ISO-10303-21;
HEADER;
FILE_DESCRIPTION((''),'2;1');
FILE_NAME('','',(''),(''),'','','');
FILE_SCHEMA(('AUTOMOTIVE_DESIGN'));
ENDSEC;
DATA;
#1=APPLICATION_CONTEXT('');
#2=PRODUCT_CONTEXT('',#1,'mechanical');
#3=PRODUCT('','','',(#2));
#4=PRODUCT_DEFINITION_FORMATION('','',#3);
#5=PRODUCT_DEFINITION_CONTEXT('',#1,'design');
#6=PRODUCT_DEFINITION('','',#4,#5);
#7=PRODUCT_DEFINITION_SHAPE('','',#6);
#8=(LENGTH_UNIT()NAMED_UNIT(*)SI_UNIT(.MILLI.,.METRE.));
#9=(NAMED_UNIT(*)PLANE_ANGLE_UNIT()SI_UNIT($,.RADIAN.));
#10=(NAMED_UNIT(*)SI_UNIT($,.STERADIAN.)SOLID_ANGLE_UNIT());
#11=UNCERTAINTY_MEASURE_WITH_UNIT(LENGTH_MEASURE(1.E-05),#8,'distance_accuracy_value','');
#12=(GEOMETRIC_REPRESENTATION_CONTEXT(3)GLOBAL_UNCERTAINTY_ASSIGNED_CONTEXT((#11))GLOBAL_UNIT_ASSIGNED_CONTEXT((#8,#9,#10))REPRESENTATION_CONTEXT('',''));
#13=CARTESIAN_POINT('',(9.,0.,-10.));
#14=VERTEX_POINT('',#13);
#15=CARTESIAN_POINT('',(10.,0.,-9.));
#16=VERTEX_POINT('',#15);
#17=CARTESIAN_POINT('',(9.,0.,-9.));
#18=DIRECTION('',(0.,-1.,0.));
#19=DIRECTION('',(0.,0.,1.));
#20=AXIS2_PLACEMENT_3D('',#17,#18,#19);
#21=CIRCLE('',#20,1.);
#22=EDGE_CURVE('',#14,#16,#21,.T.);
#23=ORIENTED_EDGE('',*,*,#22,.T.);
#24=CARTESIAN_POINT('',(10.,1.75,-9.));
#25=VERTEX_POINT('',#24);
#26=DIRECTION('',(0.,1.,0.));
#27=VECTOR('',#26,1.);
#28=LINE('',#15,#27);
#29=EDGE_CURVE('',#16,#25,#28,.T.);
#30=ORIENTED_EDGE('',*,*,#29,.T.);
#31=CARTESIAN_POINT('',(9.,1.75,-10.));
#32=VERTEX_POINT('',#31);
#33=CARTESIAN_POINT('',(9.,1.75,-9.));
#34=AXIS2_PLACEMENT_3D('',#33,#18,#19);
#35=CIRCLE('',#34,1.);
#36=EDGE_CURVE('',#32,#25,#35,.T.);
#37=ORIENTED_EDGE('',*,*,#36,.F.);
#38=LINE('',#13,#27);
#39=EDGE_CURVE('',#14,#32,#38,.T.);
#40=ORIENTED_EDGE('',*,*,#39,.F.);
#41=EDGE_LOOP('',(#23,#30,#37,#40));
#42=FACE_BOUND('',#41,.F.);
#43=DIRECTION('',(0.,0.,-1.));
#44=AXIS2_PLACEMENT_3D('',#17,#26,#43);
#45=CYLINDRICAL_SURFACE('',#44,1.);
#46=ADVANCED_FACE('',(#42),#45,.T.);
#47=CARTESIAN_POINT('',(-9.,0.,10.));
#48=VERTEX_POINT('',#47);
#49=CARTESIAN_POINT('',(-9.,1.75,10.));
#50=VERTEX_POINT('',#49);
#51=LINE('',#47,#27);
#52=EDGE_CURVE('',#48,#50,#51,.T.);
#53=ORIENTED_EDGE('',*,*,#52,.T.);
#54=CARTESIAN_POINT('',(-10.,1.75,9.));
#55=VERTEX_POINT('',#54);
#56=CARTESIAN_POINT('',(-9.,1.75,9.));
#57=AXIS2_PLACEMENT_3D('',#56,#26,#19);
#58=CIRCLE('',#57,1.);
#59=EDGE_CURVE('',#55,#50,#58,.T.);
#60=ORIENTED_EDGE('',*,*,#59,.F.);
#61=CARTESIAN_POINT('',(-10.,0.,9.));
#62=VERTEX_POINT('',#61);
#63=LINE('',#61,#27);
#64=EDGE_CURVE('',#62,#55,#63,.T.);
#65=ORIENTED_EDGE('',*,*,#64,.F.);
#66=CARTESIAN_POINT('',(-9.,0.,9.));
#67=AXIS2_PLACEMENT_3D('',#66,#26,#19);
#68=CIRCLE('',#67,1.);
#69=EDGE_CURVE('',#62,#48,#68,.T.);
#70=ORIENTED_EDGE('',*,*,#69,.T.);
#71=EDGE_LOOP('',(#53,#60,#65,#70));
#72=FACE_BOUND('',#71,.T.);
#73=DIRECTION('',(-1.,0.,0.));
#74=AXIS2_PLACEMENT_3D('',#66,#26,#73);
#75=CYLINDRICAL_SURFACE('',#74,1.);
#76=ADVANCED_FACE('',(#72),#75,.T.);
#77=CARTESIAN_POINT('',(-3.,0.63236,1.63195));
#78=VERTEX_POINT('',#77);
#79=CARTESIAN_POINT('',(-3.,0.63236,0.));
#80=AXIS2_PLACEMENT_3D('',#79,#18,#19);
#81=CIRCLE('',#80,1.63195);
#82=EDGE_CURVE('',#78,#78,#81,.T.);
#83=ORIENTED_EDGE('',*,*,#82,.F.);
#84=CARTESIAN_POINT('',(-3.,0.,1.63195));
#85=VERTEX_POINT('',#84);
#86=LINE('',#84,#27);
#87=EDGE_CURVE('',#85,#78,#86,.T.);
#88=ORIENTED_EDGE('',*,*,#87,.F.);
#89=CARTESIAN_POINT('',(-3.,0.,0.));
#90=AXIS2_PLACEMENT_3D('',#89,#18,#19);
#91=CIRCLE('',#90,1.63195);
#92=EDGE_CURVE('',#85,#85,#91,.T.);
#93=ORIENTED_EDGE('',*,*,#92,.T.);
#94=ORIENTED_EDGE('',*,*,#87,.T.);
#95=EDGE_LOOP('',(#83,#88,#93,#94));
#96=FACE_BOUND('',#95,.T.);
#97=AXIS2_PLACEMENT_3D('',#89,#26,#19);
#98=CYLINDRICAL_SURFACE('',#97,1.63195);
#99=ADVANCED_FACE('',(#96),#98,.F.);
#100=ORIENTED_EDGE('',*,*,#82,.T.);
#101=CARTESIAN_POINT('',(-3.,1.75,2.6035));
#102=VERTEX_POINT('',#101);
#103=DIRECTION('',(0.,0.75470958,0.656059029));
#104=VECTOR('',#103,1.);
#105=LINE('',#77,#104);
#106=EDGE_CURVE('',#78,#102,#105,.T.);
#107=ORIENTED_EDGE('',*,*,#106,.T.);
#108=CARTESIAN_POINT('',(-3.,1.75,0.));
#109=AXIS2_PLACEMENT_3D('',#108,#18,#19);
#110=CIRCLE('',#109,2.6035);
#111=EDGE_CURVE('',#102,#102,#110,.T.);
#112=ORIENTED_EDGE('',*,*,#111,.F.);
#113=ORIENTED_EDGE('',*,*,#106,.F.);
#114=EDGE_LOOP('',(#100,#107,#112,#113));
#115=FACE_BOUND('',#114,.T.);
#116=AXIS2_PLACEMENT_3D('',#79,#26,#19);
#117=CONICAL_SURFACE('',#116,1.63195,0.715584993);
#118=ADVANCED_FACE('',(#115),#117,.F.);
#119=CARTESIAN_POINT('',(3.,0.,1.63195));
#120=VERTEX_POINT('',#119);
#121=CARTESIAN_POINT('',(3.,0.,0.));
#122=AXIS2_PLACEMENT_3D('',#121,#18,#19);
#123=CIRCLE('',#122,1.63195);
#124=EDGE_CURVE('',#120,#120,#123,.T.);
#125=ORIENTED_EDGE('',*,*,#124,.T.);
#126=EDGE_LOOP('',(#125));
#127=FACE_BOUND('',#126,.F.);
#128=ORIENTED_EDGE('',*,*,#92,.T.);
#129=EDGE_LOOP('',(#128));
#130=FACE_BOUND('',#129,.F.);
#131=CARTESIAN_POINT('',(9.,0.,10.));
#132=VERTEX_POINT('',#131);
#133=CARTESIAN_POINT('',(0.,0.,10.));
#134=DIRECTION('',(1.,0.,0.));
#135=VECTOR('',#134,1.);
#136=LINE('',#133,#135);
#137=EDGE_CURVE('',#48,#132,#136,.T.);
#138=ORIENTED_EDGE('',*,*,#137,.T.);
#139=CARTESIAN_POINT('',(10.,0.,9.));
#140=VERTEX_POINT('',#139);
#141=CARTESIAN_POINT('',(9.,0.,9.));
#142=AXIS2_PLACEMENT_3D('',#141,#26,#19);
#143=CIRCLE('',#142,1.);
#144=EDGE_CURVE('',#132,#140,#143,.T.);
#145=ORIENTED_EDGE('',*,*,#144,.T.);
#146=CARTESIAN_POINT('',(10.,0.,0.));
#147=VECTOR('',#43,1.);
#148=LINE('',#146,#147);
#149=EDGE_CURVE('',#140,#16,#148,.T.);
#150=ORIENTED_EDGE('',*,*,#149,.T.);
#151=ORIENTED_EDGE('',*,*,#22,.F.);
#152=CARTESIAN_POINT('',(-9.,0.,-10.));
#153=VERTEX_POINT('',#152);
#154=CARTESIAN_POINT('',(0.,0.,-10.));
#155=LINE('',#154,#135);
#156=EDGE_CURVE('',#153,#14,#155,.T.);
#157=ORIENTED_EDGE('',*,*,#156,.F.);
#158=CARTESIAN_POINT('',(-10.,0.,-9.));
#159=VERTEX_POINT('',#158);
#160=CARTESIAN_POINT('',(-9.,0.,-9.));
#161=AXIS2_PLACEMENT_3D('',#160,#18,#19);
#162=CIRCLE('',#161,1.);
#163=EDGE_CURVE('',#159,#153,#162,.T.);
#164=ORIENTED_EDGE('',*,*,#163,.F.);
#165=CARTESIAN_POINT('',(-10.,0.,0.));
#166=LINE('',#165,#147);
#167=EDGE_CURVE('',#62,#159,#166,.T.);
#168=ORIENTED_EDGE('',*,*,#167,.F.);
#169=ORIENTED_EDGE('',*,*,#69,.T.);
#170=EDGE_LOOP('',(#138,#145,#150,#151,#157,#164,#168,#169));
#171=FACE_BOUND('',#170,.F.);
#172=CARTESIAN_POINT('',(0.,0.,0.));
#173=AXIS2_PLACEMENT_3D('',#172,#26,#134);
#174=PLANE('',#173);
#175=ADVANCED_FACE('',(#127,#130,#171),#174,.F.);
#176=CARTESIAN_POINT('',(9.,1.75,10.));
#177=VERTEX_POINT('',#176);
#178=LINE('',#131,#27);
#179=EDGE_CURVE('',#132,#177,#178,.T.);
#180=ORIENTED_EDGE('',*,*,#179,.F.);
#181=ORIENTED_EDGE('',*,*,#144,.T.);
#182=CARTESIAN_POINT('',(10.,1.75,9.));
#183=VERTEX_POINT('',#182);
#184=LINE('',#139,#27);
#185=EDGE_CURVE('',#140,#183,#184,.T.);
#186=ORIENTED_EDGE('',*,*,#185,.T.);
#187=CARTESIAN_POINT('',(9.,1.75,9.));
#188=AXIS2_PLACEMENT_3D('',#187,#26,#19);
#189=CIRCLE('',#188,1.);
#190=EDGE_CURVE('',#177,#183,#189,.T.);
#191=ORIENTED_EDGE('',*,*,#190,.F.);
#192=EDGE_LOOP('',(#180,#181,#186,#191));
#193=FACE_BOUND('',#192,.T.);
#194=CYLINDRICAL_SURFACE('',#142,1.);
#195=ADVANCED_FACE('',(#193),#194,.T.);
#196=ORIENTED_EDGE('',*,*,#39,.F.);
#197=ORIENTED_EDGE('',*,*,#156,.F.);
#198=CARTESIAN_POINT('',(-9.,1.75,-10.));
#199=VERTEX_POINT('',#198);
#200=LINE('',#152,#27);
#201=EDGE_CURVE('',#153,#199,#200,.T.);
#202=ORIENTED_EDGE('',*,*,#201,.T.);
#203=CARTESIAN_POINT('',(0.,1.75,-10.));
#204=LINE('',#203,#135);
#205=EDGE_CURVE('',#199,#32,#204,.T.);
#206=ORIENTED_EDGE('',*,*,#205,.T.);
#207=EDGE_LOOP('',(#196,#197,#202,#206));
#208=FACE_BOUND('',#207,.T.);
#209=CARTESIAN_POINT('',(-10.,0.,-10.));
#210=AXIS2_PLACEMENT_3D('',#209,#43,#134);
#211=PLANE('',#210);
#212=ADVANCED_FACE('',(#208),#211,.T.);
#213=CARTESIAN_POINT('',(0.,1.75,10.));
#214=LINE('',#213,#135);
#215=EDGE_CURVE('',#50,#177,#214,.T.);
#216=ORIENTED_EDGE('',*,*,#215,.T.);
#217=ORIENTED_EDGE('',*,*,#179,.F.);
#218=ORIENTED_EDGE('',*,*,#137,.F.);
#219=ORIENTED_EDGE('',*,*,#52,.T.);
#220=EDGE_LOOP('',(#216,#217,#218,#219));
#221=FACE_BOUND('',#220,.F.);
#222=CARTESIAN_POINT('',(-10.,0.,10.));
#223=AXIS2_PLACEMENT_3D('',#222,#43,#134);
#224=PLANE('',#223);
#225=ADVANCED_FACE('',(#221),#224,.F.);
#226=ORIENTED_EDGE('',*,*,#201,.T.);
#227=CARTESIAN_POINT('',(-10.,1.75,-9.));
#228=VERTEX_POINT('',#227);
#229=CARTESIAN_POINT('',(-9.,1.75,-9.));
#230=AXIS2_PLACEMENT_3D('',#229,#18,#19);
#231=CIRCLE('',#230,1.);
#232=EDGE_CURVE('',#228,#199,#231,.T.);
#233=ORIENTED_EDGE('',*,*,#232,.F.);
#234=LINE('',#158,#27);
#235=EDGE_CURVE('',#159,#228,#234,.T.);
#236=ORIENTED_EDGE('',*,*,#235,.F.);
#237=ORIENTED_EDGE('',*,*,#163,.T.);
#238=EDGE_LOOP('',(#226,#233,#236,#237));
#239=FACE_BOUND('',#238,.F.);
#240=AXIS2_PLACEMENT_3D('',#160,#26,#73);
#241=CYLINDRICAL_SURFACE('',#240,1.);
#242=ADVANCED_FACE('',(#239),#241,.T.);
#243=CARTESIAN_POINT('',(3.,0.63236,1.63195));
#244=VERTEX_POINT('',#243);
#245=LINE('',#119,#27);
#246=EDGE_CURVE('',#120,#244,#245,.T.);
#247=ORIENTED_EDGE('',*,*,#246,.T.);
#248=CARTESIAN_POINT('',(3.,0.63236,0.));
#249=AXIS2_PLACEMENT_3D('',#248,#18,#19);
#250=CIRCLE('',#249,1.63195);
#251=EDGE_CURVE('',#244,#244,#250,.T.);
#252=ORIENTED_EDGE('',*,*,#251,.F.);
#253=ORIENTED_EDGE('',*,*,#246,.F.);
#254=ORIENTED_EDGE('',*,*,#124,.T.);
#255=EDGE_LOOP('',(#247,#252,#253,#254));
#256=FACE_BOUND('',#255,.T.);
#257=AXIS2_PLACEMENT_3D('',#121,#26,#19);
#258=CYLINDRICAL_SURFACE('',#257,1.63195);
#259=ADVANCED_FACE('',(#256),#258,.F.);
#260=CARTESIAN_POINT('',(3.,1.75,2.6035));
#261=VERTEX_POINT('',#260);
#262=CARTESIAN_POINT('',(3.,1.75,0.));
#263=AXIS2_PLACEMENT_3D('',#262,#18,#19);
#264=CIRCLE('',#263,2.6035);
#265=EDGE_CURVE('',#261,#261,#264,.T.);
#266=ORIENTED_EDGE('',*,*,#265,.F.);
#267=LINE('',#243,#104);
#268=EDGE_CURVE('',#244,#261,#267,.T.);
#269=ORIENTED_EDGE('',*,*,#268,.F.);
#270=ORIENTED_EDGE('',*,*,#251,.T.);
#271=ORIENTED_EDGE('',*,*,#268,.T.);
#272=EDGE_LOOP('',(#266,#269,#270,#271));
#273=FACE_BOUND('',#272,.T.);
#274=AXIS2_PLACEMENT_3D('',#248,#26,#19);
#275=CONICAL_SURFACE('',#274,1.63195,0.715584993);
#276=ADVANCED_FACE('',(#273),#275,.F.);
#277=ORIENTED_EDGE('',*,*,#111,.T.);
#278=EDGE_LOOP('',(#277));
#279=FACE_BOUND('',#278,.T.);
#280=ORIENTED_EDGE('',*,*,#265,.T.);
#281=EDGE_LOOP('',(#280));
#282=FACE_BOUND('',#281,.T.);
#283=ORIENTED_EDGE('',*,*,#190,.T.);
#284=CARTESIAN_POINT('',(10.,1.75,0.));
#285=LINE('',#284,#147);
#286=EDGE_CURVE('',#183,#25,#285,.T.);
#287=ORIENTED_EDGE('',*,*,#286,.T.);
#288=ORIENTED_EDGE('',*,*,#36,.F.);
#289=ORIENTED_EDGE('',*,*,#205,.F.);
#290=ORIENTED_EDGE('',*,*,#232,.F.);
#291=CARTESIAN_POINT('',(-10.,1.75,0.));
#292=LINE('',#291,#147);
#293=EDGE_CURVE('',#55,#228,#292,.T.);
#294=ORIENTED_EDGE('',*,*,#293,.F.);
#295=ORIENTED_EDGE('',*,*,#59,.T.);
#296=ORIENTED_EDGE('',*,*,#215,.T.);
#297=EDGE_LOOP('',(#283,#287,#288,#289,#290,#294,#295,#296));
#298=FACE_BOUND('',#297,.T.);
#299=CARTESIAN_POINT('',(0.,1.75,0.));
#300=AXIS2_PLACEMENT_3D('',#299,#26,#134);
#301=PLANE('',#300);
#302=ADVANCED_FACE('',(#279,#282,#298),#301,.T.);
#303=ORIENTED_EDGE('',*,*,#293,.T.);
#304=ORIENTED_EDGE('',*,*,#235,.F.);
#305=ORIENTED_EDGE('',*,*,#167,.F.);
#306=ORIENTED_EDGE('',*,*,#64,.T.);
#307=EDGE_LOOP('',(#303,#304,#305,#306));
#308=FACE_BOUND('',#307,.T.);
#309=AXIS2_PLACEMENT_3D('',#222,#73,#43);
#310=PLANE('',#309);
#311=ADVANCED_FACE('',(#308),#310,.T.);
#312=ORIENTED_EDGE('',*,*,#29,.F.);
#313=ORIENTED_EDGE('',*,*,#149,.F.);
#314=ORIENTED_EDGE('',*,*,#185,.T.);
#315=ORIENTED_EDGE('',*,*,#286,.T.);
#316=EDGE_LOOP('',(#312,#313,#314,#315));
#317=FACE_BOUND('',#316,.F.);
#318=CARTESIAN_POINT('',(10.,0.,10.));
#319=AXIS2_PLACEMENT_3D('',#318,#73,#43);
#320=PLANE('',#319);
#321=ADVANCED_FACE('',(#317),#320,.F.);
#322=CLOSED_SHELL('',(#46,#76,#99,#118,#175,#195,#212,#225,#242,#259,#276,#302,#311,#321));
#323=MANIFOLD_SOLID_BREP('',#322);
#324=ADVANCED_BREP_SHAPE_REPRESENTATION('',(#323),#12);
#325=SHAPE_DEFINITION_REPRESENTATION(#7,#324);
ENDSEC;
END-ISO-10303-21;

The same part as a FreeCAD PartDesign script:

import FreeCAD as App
import Part
import Sketcher
from FreeCAD import Vector
Q = App.Units.Quantity


def edges_at(feature, points):
    """Names of the edges that pass closest to the given points."""
    edges = feature.Shape.Edges
    near = lambda p: min(range(len(edges)), key=lambda i: edges[i].distToShape(Part.Vertex(*p))[0])
    return sorted({f"Edge{near(p) + 1}" for p in points})

doc = App.newDocument("Part")
body = doc.addObject("PartDesign::Body", "Body")

sketch1 = doc.addObject("Sketcher::SketchObject", "Sketch")
body.addObject(sketch1)
sketch1.AttachmentSupport = (doc.XZ_Plane, [""])
sketch1.MapMode = "FlatFace"
sketch1.addGeometry(Part.LineSegment(Vector(-10, -10, 0), Vector(-10, 10, 0)), False)
sketch1.addGeometry(Part.LineSegment(Vector(-10, 10, 0), Vector(10, 10, 0)), False)
sketch1.addGeometry(Part.LineSegment(Vector(10, 10, 0), Vector(10, -10, 0)), False)
sketch1.addGeometry(Part.LineSegment(Vector(10, -10, 0), Vector(-10, -10, 0)), False)
sketch1.addConstraint(Sketcher.Constraint("Coincident", 0, 2, 1, 1))
sketch1.addConstraint(Sketcher.Constraint("Coincident", 1, 2, 2, 1))
sketch1.addConstraint(Sketcher.Constraint("Coincident", 2, 2, 3, 1))
sketch1.addConstraint(Sketcher.Constraint("Coincident", 3, 2, 0, 1))
sketch1.addConstraint(Sketcher.Constraint("Vertical", 0))
sketch1.addConstraint(Sketcher.Constraint("Horizontal", 1))
sketch1.addConstraint(Sketcher.Constraint("Vertical", 2))
sketch1.addConstraint(Sketcher.Constraint("Horizontal", 3))
sketch1.addConstraint(Sketcher.Constraint("Symmetric", 0, 2, 2, 2, -1, 1))
sketch1.addConstraint(Sketcher.Constraint("Equal", 3, 0))
sketch1.addConstraint(Sketcher.Constraint("DistanceX", 1, 1, 1, 2, 20.0))
pad1 = doc.addObject("PartDesign::Pad", "Pad")
body.addObject(pad1)
pad1.Profile = sketch1
pad1.Length = 1.75
pad1.Reversed = True

sketch2 = doc.addObject("Sketcher::SketchObject", "Sketch001")
body.addObject(sketch2)
sketch2.AttachmentSupport = (doc.YZ_Plane, [""])
sketch2.MapMode = "FlatFace"
sketch2.AttachmentOffset = App.Placement(Vector(0, 0, 3), App.Rotation())
sketch2.addGeometry(Part.LineSegment(Vector(0, 0, 0), Vector(1.8, 0, 0)), False)
sketch2.addGeometry(Part.LineSegment(Vector(1.8, 0, 0), Vector(1.8, 2.6, 0)), False)
sketch2.addGeometry(Part.LineSegment(Vector(1.8, 2.6, 0), Vector(0.6, 1.6, 0)), False)
sketch2.addGeometry(Part.LineSegment(Vector(0.6, 1.6, 0), Vector(0, 1.6, 0)), False)
sketch2.addGeometry(Part.LineSegment(Vector(0, 1.6, 0), Vector(0, 0, 0)), False)
sketch2.addConstraint(Sketcher.Constraint("Coincident", 0, 2, 1, 1))
sketch2.addConstraint(Sketcher.Constraint("Coincident", 1, 2, 2, 1))
sketch2.addConstraint(Sketcher.Constraint("Coincident", 2, 2, 3, 1))
sketch2.addConstraint(Sketcher.Constraint("Coincident", 3, 2, 4, 1))
sketch2.addConstraint(Sketcher.Constraint("Coincident", 4, 2, 0, 1))
sketch2.addConstraint(Sketcher.Constraint("Horizontal", 0))
sketch2.addConstraint(Sketcher.Constraint("Vertical", 1))
sketch2.addConstraint(Sketcher.Constraint("Horizontal", 3))
sketch2.addConstraint(Sketcher.Constraint("Vertical", 4))
sketch2.addConstraint(Sketcher.Constraint("Coincident", 4, 2, -1, 1))
sketch2.addConstraint(Sketcher.Constraint("Angle", 2, Q("-139 deg")))
sketch2.addConstraint(Sketcher.Constraint("DistanceX", 0, 1, 0, 2, 1.75))
sketch2.addConstraint(Sketcher.Constraint("DistanceY", 1, 1, 1, 2, 2.6035))
sketch2.addConstraint(Sketcher.Constraint("DistanceX", 3, 2, 3, 1, 0.63236))
groove = doc.addObject("PartDesign::Groove", "Groove")
body.addObject(groove)
groove.Profile = sketch2
groove.ReferenceAxis = (sketch2, ["H_Axis"])
groove.Angle = 360
doc.recompute()

linearpattern = doc.addObject("PartDesign::LinearPattern", "LinearPattern")
body.addObject(linearpattern)
linearpattern.Originals = [groove]
linearpattern.Direction = (doc.X_Axis, [""])
linearpattern.Mode = "offset"
linearpattern.Offset = 6
linearpattern.Occurrences = 2
linearpattern.Reversed = True
body.Tip = linearpattern
doc.recompute()

fillet = doc.addObject("PartDesign::Fillet", "Fillet")
body.addObject(fillet)
fillet.Base = (linearpattern, edges_at(linearpattern, [
    (10, 0.875, 10),
    (-10, 0.875, 10),
    (-10, 0.875, -10),
    (10, 0.875, -10),
]))
fillet.Radius = 1

doc.recompute()
